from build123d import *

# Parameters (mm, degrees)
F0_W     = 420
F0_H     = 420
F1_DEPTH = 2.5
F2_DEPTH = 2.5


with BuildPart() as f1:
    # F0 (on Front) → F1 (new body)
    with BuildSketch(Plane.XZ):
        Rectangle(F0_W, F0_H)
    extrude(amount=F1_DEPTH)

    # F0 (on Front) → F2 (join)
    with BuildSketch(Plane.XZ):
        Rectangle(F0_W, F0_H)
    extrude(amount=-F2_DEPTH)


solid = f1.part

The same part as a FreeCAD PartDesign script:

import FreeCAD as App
import Part
import Sketcher

doc = App.newDocument("Part")
body = doc.addObject("PartDesign::Body", "Body")

# Sketch on XZ plane
sketch1 = body.newObject("Sketcher::SketchObject", "Sketch")
sketch1.AttachmentSupport = (doc.getObject("XZ_Plane"), [""])
sketch1.MapMode = "FlatFace"
sketch1.addGeometry([
    Part.LineSegment(App.Vector(-210, 210, 0), App.Vector(-210, -210, 0)),
    Part.LineSegment(App.Vector(-210, -210, 0), App.Vector(210, -210, 0)),
    Part.LineSegment(App.Vector(210, -210, 0), App.Vector(210, 210, 0)),
    Part.LineSegment(App.Vector(210, 210, 0), App.Vector(-210, 210, 0)),
], False)
sketch1.addConstraint([
    Sketcher.Constraint("Coincident", 0, 2, 1, 1),
    Sketcher.Constraint("Coincident", 1, 2, 2, 1),
    Sketcher.Constraint("Coincident", 2, 2, 3, 1),
    Sketcher.Constraint("Coincident", 3, 2, 0, 1),
    Sketcher.Constraint("Vertical", 0),
    Sketcher.Constraint("Horizontal", 1),
    Sketcher.Constraint("Vertical", 2),
    Sketcher.Constraint("Horizontal", 3),
    Sketcher.Constraint("Symmetric", 0, 2, 2, 2, -1, 1),
    Sketcher.Constraint("Equal", 3, 0),
    Sketcher.Constraint("DistanceX", 1, 1, 1, 2, 420.0),
])
pad1 = body.newObject("PartDesign::Pad", "Pad")
pad1.Profile = sketch1
pad1.Length = 2.5

# Sketch on XZ plane
sketch2 = body.newObject("Sketcher::SketchObject", "Sketch001")
sketch2.AttachmentSupport = (doc.getObject("XZ_Plane"), [""])
sketch2.MapMode = "FlatFace"
sketch2.addGeometry([
    Part.LineSegment(App.Vector(-210, 210, 0), App.Vector(-210, -210, 0)),
    Part.LineSegment(App.Vector(-210, -210, 0), App.Vector(210, -210, 0)),
    Part.LineSegment(App.Vector(210, -210, 0), App.Vector(210, 210, 0)),
    Part.LineSegment(App.Vector(210, 210, 0), App.Vector(-210, 210, 0)),
], False)
sketch2.addConstraint([
    Sketcher.Constraint("Coincident", 0, 2, 1, 1),
    Sketcher.Constraint("Coincident", 1, 2, 2, 1),
    Sketcher.Constraint("Coincident", 2, 2, 3, 1),
    Sketcher.Constraint("Coincident", 3, 2, 0, 1),
    Sketcher.Constraint("Vertical", 0),
    Sketcher.Constraint("Horizontal", 1),
    Sketcher.Constraint("Vertical", 2),
    Sketcher.Constraint("Horizontal", 3),
    Sketcher.Constraint("Symmetric", 0, 2, 2, 2, -1, 1),
    Sketcher.Constraint("Equal", 3, 0),
    Sketcher.Constraint("DistanceX", 1, 1, 1, 2, 420.0),
])
pad2 = body.newObject("PartDesign::Pad", "Pad001")
pad2.Profile = sketch2
pad2.Length = 2.5
pad2.Reversed = True

doc.recompute()
